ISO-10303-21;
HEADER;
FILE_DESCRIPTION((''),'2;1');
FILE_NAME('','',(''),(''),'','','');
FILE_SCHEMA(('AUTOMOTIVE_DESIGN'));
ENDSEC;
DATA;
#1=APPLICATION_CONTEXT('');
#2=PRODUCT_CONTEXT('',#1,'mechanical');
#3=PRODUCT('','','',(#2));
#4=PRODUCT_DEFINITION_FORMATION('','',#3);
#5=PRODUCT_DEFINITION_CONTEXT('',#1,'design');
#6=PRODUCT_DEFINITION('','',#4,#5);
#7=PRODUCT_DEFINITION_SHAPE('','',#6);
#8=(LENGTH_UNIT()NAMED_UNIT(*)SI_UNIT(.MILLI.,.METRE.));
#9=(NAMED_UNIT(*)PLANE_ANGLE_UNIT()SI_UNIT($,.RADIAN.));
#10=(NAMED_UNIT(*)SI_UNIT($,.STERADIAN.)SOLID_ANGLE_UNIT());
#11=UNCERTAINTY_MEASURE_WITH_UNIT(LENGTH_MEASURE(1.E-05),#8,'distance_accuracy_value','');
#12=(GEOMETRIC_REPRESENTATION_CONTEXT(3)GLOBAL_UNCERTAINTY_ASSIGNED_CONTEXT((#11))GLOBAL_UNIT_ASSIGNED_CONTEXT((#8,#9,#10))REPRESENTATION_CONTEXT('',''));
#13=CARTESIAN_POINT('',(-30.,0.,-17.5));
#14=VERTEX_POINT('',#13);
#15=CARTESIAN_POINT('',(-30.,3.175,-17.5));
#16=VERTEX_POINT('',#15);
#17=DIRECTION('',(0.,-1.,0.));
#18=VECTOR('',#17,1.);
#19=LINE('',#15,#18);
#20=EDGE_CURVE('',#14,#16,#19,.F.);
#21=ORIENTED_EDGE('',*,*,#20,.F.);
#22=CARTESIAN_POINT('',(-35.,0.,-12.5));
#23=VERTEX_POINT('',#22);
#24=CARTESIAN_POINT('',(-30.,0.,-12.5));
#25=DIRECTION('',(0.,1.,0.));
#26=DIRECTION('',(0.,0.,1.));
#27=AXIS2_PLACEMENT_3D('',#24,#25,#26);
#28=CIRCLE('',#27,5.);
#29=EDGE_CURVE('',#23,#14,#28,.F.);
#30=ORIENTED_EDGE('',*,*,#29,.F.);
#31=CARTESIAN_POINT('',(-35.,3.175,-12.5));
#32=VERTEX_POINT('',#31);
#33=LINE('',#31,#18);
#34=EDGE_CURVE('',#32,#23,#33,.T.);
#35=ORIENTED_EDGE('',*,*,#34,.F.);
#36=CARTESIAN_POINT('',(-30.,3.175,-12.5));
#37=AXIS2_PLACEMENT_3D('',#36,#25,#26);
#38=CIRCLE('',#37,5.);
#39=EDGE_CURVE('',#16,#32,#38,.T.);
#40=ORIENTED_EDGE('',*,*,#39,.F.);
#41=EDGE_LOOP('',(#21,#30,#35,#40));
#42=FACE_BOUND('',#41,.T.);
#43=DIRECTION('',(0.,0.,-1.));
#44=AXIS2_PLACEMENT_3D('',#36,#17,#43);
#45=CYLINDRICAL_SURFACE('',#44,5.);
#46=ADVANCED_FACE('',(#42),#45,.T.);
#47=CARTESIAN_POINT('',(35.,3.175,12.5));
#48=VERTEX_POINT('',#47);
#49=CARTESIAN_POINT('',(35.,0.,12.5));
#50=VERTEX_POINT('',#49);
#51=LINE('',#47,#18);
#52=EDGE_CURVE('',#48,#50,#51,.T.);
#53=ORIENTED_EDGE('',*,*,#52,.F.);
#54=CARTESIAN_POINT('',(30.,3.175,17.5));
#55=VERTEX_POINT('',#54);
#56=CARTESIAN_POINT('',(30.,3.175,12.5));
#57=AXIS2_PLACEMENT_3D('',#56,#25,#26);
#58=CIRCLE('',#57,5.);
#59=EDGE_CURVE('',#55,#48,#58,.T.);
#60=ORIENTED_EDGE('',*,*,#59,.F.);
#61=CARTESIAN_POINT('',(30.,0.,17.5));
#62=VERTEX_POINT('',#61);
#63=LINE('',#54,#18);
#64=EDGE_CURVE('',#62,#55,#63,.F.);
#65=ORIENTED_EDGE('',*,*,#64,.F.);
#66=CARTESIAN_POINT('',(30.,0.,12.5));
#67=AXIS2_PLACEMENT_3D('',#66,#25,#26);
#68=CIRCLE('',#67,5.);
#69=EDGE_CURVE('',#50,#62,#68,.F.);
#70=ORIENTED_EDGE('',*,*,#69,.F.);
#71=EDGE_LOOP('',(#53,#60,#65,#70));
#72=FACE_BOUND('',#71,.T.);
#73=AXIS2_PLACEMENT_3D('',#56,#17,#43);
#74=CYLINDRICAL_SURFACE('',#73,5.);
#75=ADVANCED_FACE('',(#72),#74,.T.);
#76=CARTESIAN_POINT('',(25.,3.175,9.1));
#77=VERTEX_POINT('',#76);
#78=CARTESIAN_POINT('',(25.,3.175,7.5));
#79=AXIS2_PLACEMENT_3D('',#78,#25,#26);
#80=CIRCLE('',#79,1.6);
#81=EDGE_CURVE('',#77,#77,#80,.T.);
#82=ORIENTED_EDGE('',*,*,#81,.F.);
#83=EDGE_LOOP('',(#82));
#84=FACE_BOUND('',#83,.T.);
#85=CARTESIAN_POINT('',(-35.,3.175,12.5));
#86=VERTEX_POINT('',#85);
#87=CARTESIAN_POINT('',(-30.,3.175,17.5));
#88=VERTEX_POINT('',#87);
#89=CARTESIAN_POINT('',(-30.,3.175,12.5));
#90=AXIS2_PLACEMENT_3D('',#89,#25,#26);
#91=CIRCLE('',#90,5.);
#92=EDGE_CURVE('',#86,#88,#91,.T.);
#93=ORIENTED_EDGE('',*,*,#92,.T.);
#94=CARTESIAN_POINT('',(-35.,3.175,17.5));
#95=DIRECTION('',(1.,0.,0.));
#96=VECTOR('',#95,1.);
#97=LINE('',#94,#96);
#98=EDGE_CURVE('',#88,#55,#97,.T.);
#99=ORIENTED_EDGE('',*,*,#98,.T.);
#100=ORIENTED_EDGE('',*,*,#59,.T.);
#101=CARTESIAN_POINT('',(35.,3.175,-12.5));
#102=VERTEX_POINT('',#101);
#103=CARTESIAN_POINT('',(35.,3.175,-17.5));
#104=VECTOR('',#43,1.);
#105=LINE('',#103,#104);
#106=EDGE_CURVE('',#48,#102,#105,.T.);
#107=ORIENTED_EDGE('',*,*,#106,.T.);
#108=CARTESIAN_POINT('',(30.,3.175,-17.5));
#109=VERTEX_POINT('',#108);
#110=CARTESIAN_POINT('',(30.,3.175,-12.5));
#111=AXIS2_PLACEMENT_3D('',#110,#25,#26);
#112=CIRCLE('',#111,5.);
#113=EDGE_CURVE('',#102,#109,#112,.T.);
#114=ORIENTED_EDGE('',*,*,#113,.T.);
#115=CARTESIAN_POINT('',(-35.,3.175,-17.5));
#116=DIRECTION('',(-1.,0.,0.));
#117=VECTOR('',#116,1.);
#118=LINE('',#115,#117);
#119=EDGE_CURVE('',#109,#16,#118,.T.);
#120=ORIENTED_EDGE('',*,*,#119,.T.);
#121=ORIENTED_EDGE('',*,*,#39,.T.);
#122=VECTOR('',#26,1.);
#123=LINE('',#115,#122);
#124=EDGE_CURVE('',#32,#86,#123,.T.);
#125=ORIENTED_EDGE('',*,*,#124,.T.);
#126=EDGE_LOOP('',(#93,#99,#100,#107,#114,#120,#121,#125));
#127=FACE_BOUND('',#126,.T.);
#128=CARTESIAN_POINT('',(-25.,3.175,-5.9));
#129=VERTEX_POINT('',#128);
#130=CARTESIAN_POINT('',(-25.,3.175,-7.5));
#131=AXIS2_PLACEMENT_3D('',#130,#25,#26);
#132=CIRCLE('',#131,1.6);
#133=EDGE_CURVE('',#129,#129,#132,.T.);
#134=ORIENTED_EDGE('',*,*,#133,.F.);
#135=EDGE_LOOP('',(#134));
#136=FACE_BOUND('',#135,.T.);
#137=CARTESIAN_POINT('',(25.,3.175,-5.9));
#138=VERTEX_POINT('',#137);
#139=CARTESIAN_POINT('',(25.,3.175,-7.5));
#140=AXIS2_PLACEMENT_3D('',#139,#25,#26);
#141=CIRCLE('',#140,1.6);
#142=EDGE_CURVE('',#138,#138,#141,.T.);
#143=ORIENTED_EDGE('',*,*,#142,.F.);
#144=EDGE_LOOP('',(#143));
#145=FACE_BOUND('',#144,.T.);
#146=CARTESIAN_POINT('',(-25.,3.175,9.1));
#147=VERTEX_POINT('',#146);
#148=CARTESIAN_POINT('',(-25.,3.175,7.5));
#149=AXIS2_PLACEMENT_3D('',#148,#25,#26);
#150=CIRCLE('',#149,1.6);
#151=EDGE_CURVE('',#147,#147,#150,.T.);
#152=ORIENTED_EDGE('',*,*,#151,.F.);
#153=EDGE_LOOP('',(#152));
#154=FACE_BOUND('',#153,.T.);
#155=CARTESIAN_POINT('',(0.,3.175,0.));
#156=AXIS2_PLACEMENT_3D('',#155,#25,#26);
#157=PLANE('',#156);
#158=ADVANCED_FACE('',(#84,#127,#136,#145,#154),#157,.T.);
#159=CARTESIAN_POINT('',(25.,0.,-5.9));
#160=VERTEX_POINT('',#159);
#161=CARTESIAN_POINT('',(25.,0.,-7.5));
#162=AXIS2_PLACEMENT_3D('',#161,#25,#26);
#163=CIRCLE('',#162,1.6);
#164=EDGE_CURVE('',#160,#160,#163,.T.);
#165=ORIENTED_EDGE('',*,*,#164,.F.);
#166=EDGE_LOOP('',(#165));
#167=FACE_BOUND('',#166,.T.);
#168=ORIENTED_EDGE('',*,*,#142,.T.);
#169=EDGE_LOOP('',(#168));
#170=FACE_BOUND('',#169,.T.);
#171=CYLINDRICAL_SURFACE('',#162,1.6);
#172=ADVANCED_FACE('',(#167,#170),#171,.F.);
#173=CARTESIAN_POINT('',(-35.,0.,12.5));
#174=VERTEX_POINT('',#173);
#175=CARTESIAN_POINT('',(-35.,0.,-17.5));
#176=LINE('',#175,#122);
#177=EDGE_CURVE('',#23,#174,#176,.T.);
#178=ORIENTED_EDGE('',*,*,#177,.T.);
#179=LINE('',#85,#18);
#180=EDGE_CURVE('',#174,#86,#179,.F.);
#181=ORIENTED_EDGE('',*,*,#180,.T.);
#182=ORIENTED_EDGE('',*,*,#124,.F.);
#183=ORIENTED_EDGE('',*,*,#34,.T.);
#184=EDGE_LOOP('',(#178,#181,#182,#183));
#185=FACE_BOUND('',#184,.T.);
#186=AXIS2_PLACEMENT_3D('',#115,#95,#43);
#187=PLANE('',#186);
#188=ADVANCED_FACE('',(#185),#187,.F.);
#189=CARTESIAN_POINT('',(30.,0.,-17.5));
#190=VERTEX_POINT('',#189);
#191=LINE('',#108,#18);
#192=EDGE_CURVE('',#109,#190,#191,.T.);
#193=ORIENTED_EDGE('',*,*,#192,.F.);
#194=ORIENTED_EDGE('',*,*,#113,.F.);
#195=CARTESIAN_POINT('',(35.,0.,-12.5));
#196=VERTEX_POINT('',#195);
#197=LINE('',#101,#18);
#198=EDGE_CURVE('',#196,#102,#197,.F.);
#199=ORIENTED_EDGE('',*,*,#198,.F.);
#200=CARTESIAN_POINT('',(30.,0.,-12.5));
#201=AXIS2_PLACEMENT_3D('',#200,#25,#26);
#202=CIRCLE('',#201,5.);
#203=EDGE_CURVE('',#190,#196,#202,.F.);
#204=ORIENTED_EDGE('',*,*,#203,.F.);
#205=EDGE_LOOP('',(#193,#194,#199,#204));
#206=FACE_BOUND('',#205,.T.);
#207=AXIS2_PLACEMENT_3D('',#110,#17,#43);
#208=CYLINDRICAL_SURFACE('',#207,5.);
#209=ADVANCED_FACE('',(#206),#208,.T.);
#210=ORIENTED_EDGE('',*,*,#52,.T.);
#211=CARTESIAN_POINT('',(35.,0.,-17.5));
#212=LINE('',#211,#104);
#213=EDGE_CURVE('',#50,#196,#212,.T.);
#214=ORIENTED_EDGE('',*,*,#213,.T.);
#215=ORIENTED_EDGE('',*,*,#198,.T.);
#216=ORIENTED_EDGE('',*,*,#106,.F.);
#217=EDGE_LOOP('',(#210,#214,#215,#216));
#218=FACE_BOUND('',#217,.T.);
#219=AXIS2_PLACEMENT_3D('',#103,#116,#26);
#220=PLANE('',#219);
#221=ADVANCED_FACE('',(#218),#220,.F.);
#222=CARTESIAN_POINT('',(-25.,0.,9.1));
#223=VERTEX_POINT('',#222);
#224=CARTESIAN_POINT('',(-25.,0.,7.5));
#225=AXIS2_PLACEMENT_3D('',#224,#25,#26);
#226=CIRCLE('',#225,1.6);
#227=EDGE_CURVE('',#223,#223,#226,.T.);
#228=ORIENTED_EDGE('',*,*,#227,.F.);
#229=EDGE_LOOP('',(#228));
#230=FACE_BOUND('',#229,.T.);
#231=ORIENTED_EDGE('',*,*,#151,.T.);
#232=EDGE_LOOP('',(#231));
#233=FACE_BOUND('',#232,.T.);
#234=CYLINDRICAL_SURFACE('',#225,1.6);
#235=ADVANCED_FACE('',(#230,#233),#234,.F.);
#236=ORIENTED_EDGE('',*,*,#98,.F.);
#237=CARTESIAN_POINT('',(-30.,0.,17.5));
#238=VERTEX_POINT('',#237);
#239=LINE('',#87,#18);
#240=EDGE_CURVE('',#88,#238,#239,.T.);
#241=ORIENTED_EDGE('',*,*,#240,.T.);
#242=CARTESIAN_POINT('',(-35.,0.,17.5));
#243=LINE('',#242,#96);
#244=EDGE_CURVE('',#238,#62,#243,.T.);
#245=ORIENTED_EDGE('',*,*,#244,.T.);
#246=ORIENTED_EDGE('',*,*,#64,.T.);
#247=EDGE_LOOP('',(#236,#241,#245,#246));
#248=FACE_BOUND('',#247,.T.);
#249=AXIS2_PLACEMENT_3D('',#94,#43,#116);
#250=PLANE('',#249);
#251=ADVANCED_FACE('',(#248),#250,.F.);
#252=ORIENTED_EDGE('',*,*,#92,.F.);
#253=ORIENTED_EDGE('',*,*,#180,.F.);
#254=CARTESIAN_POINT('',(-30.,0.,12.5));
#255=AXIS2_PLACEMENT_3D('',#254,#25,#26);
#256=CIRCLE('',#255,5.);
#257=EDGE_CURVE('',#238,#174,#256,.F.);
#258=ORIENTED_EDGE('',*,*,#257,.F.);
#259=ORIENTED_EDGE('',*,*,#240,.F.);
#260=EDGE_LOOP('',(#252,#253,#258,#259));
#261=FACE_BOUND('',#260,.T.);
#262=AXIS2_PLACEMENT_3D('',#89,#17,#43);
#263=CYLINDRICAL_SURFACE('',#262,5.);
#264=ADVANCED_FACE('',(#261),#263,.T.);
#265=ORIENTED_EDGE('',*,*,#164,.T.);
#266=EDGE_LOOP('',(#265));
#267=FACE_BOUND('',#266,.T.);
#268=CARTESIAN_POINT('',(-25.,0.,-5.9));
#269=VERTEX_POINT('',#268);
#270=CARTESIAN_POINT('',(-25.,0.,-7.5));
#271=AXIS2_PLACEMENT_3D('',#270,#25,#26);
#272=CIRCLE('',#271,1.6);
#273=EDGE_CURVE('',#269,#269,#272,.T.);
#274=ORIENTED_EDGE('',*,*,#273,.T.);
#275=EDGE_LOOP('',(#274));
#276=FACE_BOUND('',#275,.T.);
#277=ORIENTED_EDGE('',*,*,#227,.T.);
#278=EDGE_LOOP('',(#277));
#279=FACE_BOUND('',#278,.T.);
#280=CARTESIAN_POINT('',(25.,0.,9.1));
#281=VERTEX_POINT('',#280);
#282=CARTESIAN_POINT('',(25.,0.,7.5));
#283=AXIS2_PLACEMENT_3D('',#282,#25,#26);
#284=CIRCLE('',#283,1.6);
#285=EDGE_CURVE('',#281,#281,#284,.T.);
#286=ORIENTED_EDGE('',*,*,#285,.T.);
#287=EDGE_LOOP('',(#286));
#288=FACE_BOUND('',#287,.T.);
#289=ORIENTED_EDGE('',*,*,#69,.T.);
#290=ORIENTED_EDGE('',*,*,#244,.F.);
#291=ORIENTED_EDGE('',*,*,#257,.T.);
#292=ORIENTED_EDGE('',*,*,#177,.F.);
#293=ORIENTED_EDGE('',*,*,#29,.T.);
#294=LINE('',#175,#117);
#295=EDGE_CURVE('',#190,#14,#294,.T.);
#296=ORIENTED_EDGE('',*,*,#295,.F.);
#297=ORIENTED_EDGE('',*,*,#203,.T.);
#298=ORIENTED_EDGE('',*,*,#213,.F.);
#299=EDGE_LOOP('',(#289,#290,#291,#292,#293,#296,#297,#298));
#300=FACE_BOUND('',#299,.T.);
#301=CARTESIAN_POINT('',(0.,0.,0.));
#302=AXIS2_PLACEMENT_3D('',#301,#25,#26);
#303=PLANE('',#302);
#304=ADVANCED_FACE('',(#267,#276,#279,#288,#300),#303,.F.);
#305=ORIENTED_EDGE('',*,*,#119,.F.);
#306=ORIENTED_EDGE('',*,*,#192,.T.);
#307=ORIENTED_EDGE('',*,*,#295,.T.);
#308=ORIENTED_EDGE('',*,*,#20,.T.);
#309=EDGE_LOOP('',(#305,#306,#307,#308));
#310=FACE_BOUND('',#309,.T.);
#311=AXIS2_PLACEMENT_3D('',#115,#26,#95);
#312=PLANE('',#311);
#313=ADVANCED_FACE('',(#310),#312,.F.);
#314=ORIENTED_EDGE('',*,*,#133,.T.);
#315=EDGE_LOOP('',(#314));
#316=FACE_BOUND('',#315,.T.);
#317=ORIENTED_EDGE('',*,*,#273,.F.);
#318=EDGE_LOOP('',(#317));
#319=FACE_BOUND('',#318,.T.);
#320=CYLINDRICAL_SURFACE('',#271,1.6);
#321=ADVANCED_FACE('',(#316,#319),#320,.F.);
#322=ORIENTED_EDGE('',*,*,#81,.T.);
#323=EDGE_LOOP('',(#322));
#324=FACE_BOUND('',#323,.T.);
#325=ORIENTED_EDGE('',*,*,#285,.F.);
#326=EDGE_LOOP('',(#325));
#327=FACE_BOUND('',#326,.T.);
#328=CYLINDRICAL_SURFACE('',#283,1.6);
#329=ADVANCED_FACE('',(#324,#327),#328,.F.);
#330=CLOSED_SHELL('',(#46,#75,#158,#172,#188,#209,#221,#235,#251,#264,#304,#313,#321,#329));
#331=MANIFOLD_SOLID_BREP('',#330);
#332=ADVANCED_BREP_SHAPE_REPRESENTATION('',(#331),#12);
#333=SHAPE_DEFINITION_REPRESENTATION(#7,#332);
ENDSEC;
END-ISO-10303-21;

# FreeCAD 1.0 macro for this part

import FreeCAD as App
import Part
import Sketcher
from FreeCAD import Vector


def edges_at(feature, points):
    """Names of the edges that pass closest to the given points."""
    edges = feature.Shape.Edges
    near = lambda p: min(range(len(edges)), key=lambda i: edges[i].distToShape(Part.Vertex(*p))[0])
    return sorted({f"Edge{near(p) + 1}" for p in points})

doc = App.newDocument("Part")
params = doc.addObject("Spreadsheet::Sheet", "Params")
for row, (alias, value) in enumerate([
    ("sketch1_width", "70 mm"),
    ("sketch1_height", "35 mm"),
    ("pad1_length", "3.175 mm"),
    ("sketch2_diameter", "3.2 mm"),
    ("pocket1_length", "3.175 mm"),
    ("fillet_radius", "5 mm"),
], start=1):
    params.set(f"A{row}", alias)
    params.set(f"B{row}", "=" + value)
    params.setAlias(f"B{row}", alias)

body = doc.addObject("PartDesign::Body", "Body")

sketch1 = body.newObject("Sketcher::SketchObject", "Sketch")
sketch1.AttachmentSupport = (doc.getObject("XZ_Plane"), [""])
sketch1.MapMode = "FlatFace"
sketch1.addGeometry([
    Part.LineSegment(Vector(-35, -18, 0), Vector(-35, 18, 0)),
    Part.LineSegment(Vector(-35, 18, 0), Vector(35, 18, 0)),
    Part.LineSegment(Vector(35, 18, 0), Vector(35, -18, 0)),
    Part.LineSegment(Vector(35, -18, 0), Vector(-35, -18, 0)),
], False)
sketch1.addConstraint([
    Sketcher.Constraint("Coincident", 0, 2, 1, 1),
    Sketcher.Constraint("Coincident", 1, 2, 2, 1),
    Sketcher.Constraint("Coincident", 2, 2, 3, 1),
    Sketcher.Constraint("Coincident", 3, 2, 0, 1),
    Sketcher.Constraint("Vertical", 0),
    Sketcher.Constraint("Horizontal", 1),
    Sketcher.Constraint("Vertical", 2),
    Sketcher.Constraint("Horizontal", 3),
    Sketcher.Constraint("Symmetric", 0, 2, 2, 2, -1, 1),
    Sketcher.Constraint("DistanceX", 1, 1, 1, 2, 70.0),
    Sketcher.Constraint("DistanceY", 0, 1, 0, 2, 35.0),
])
sketch1.setExpression("Constraints[9]", "Params.sketch1_width")
sketch1.setExpression("Constraints[10]", "Params.sketch1_height")
pad1 = body.newObject("PartDesign::Pad", "Pad")
pad1.Profile = sketch1
pad1.setExpression("Length", "Params.pad1_length")
pad1.Reversed = True

sketch2 = body.newObject("Sketcher::SketchObject", "Sketch001")
sketch2.AttachmentSupport = (doc.getObject("XZ_Plane"), [""])
sketch2.MapMode = "FlatFace"
sketch2.AttachmentOffset = App.Placement(Vector(0, 0, -3.175), App.Rotation())
sketch2.addGeometry([
    Part.Circle(Vector(-25, -7.5, 0), Vector(0, 0, 1), 1.6),
    Part.Circle(Vector(-25, 7.5, 0), Vector(0, 0, 1), 1.6),
    Part.Circle(Vector(25, 7.5, 0), Vector(0, 0, 1), 1.6),
    Part.Circle(Vector(25, -7.5, 0), Vector(0, 0, 1), 1.6),
], False)
sketch2.addConstraint([
    Sketcher.Constraint("Equal", 0, 1),
    Sketcher.Constraint("Equal", 1, 2),
    Sketcher.Constraint("Equal", 2, 3),
    Sketcher.Constraint("Symmetric", 0, 3, 2, 3, -1, 1),
    Sketcher.Constraint("Symmetric", 1, 3, 3, 3, -1, 1),
    Sketcher.Constraint("Symmetric", 1, 3, 2, 3, -2),
    Sketcher.Constraint("Diameter", 0, 3.2),
    Sketcher.Constraint("DistanceX", 0, 3, -1, 1, 25.0),
    Sketcher.Constraint("DistanceY", 0, 3, 1, 3, 15.0),
])
sketch2.setExpression("Constraints[6]", "Params.sketch2_diameter")
pocket1 = body.newObject("PartDesign::Pocket", "Pocket")
pocket1.Profile = sketch2
pocket1.setExpression("Length", "Params.pocket1_length")
pocket1.Reversed = True
doc.recompute()

fillet = body.newObject("PartDesign::Fillet", "Fillet")
fillet.Base = (pocket1, edges_at(pocket1, [
    (35, 1.587, 17.5),
    (-35, 1.587, 17.5),
    (-35, 1.587, -17.5),
    (35, 1.587, -17.5),
]))
fillet.setExpression("Radius", "Params.fillet_radius")

doc.recompute()
